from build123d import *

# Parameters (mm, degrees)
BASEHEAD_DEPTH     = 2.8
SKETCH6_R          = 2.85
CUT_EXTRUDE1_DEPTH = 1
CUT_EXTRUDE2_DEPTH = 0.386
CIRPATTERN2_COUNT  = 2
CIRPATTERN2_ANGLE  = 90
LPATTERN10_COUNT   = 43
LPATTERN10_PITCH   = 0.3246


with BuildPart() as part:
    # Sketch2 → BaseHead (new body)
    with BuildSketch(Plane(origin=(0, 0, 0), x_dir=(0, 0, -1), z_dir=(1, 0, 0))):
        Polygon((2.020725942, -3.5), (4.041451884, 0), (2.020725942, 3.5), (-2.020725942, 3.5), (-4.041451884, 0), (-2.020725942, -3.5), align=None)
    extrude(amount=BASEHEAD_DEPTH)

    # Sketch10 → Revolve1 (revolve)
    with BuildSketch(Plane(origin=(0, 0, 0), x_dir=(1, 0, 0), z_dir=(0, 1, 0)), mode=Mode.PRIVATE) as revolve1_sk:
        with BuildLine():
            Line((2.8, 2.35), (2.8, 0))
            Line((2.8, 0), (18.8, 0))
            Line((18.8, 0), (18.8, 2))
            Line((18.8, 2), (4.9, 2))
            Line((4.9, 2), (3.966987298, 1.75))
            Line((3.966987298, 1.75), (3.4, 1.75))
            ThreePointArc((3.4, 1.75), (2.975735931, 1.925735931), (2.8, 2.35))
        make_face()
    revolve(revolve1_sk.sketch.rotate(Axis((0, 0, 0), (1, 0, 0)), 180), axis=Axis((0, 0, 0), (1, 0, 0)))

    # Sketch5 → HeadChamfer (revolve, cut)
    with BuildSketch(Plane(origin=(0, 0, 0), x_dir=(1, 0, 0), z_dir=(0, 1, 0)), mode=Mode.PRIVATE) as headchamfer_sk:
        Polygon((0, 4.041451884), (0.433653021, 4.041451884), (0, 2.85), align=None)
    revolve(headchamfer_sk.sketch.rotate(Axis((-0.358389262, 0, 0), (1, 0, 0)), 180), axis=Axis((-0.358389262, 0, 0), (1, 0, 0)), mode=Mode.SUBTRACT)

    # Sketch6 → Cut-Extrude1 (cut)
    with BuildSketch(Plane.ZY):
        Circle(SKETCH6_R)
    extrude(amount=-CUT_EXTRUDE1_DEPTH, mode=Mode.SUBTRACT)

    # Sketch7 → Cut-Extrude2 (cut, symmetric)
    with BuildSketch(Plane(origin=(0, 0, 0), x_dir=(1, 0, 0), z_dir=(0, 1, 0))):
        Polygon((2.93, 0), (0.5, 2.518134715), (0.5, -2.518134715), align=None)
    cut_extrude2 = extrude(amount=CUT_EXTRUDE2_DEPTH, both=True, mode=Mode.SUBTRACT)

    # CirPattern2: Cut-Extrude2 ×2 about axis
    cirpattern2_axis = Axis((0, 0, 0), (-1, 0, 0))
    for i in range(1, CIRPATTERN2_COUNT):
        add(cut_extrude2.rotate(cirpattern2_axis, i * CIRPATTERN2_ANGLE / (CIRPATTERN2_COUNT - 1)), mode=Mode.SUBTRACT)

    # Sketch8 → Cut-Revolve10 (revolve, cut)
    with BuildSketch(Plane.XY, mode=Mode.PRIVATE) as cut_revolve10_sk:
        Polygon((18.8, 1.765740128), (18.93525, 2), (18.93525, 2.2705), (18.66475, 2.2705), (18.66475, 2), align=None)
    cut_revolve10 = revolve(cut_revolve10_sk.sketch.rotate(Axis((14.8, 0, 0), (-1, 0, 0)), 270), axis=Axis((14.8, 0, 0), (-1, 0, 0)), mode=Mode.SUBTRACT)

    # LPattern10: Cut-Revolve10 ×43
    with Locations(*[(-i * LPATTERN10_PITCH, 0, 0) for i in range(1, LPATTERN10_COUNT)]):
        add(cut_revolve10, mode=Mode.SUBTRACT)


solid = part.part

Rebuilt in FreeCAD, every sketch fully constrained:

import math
import FreeCAD as App
import Part
import Sketcher
Q = App.Units.Quantity

doc = App.newDocument("Part")
params = doc.addObject("Spreadsheet::Sheet", "Params")
for row, (alias, value) in enumerate([
    ("pad1_length", "2.8 mm"),
    ("sketch2_radius", "0.6 mm"),
    ("sketch2_width", "16 mm"),
    ("sketch2_height", "2 mm"),
    ("sketch2_width2", "13.9 mm"),
    ("sketch2_height2", "2.35 mm"),
    ("revolution_angle", "360 deg"),
    ("groove_angle", "360 deg"),
    ("sketch4_diameter", "5.7 mm"),
    ("pocket1_length", "1 mm"),
    ("pocket2_length", "0.772 mm"),
    ("groove2_angle", "360 deg"),
    ("linearpattern_pitch", "0.3246 mm"),
], start=1):
    params.set(f"A{row}", alias)
    params.set(f"B{row}", "=" + value)
    params.setAlias(f"B{row}", alias)

body = doc.addObject("PartDesign::Body", "Body")

# Sketch on YZ plane
sketch1 = body.newObject("Sketcher::SketchObject", "Sketch")
sketch1.AttachmentSupport = (doc.getObject("YZ_Plane"), [""])
sketch1.MapMode = "FlatFace"
sketch1.addGeometry(Part.LineSegment(App.Vector(-3.5, -2, 0), App.Vector(0, -4, 0)), False)
sketch1.addGeometry(Part.LineSegment(App.Vector(0, -4, 0), App.Vector(3.5, -2, 0)), False)
sketch1.addGeometry(Part.LineSegment(App.Vector(3.5, -2, 0), App.Vector(3.5, 2, 0)), False)
sketch1.addGeometry(Part.LineSegment(App.Vector(3.5, 2, 0), App.Vector(0, 4, 0)), False)
sketch1.addGeometry(Part.LineSegment(App.Vector(0, 4, 0), App.Vector(-3.5, 2, 0)), False)
sketch1.addGeometry(Part.LineSegment(App.Vector(-3.5, 2, 0), App.Vector(-3.5, -2, 0)), False)
sketch1.addConstraint(Sketcher.Constraint("Coincident", 0, 2, 1, 1))
sketch1.addConstraint(Sketcher.Constraint("Coincident", 1, 2, 2, 1))
sketch1.addConstraint(Sketcher.Constraint("Coincident", 2, 2, 3, 1))
sketch1.addConstraint(Sketcher.Constraint("Coincident", 3, 2, 4, 1))
sketch1.addConstraint(Sketcher.Constraint("Coincident", 4, 2, 5, 1))
sketch1.addConstraint(Sketcher.Constraint("Coincident", 5, 2, 0, 1))
sketch1.addConstraint(Sketcher.Constraint("Vertical", 2))
sketch1.addConstraint(Sketcher.Constraint("Vertical", 5))
sketch1.addConstraint(Sketcher.Constraint("Symmetric", 0, 2, 3, 2, -1, 1))
sketch1.addConstraint(Sketcher.Constraint("Symmetric", 1, 2, 4, 2, -1, 1))
sketch1.addConstraint(Sketcher.Constraint("PointOnObject", 0, 2, -2))
sketch1.addConstraint(Sketcher.Constraint("Parallel", 0, 3))
sketch1.addConstraint(Sketcher.Constraint("Horizontal", 2, 2, 4, 2))
sketch1.addConstraint(Sketcher.Constraint("Angle", 0, Q("-30 deg")))
sketch1.addConstraint(Sketcher.Constraint("DistanceX", 4, 2, 2, 2, Q("7 mm")))
sketch1.addConstraint(Sketcher.Constraint("DistanceY", 2, 1, 2, 2, Q("4.041452 mm")))
pad1 = body.newObject("PartDesign::Pad", "Pad")
pad1.Profile = sketch1
pad1.setExpression("Length", "Params.pad1_length")

# Sketch on XZ plane
sketch2 = body.newObject("Sketcher::SketchObject", "Sketch001")
sketch2.AttachmentSupport = (doc.getObject("XZ_Plane"), [""])
sketch2.MapMode = "FlatFace"
sketch2.addGeometry(Part.LineSegment(App.Vector(2.8, -2.4, 0), App.Vector(2.8, 0, 0)), False)
sketch2.addGeometry(Part.LineSegment(App.Vector(2.8, 0, 0), App.Vector(18.8, 0, 0)), False)
sketch2.addGeometry(Part.LineSegment(App.Vector(18.8, 0, 0), App.Vector(18.8, -2, 0)), False)
sketch2.addGeometry(Part.LineSegment(App.Vector(18.8, -2, 0), App.Vector(4.9, -2, 0)), False)
sketch2.addGeometry(Part.LineSegment(App.Vector(4.9, -2, 0), App.Vector(4, -1.8, 0)), False)
sketch2.addGeometry(Part.LineSegment(App.Vector(4, -1.8, 0), App.Vector(3.4, -1.8, 0)), False)
sketch2.addGeometry(Part.ArcOfCircle(Part.Circle(App.Vector(3.4, -2.3, 0), App.Vector(0, 0, 1), 0.6), math.radians(90), math.radians(180)), False)
sketch2.addConstraint(Sketcher.Constraint("Coincident", 0, 2, 1, 1))
sketch2.addConstraint(Sketcher.Constraint("Coincident", 1, 2, 2, 1))
sketch2.addConstraint(Sketcher.Constraint("Coincident", 2, 2, 3, 1))
sketch2.addConstraint(Sketcher.Constraint("Coincident", 3, 2, 4, 1))
sketch2.addConstraint(Sketcher.Constraint("Coincident", 4, 2, 5, 1))
sketch2.addConstraint(Sketcher.Constraint("Tangent", 5, 2, 6, 1))
sketch2.addConstraint(Sketcher.Constraint("Tangent", 6, 2, 0, 1))
sketch2.addConstraint(Sketcher.Constraint("Vertical", 0))
sketch2.addConstraint(Sketcher.Constraint("Horizontal", 1))
sketch2.addConstraint(Sketcher.Constraint("Vertical", 2))
sketch2.addConstraint(Sketcher.Constraint("Horizontal", 3))
sketch2.addConstraint(Sketcher.Constraint("Horizontal", 5))
sketch2.addConstraint(Sketcher.Constraint("PointOnObject", 0, 2, -1))
sketch2.addConstraint(Sketcher.Constraint("Radius", 6, Q("0.6 mm")))
sketch2.addConstraint(Sketcher.Constraint("DistanceX", 1, 1, 1, 2, Q("16 mm")))
sketch2.addConstraint(Sketcher.Constraint("DistanceY", 2, 2, 2, 1, Q("2 mm")))
sketch2.addConstraint(Sketcher.Constraint("Angle", 4, Q("165 deg")))
sketch2.addConstraint(Sketcher.Constraint("DistanceX", 3, 2, 3, 1, Q("13.9 mm")))
sketch2.addConstraint(Sketcher.Constraint("DistanceY", 0, 1, 0, 2, Q("2.35 mm")))
sketch2.addConstraint(Sketcher.Constraint("DistanceX", -1, 1, 6, 3, Q("3.4 mm")))
sketch2.setExpression("Constraints[13]", "Params.sketch2_radius")
sketch2.setExpression("Constraints[14]", "Params.sketch2_width")
sketch2.setExpression("Constraints[15]", "Params.sketch2_height")
sketch2.setExpression("Constraints[17]", "Params.sketch2_width2")
sketch2.setExpression("Constraints[18]", "Params.sketch2_height2")
revolution = body.newObject("PartDesign::Revolution", "Revolution")
revolution.Profile = sketch2
revolution.ReferenceAxis = (sketch2, ["H_Axis"])
revolution.setExpression("Angle", "Params.revolution_angle")

# Sketch on XZ plane
sketch3 = body.newObject("Sketcher::SketchObject", "Sketch002")
sketch3.AttachmentSupport = (doc.getObject("XZ_Plane"), [""])
sketch3.MapMode = "FlatFace"
sketch3.addGeometry(Part.LineSegment(App.Vector(0.43, -4.04, 0), App.Vector(0, -4.04, 0)), False)
sketch3.addGeometry(Part.LineSegment(App.Vector(0, -4.04, 0), App.Vector(0, -2.85, 0)), False)
sketch3.addGeometry(Part.LineSegment(App.Vector(0, -2.85, 0), App.Vector(0.43, -4.04, 0)), False)
sketch3.addConstraint(Sketcher.Constraint("Coincident", 0, 2, 1, 1))
sketch3.addConstraint(Sketcher.Constraint("Coincident", 1, 2, 2, 1))
sketch3.addConstraint(Sketcher.Constraint("Coincident", 2, 2, 0, 1))
sketch3.addConstraint(Sketcher.Constraint("Horizontal", 0))
sketch3.addConstraint(Sketcher.Constraint("Vertical", 1))
sketch3.addConstraint(Sketcher.Constraint("PointOnObject", 0, 2, -2))
sketch3.addConstraint(Sketcher.Constraint("Angle", 2, Q("-70 deg")))
sketch3.addConstraint(Sketcher.Constraint("DistanceY", 1, 2, -1, 1, Q("2.85 mm")))
sketch3.addConstraint(Sketcher.Constraint("DistanceY", 1, 1, 1, 2, Q("1.191452 mm")))
groove = body.newObject("PartDesign::Groove", "Groove")
groove.Profile = sketch3
groove.ReferenceAxis = (sketch3, ["H_Axis"])
groove.setExpression("Angle", "Params.groove_angle")

# Sketch on YZ plane
sketch4 = body.newObject("Sketcher::SketchObject", "Sketch003")
sketch4.AttachmentSupport = (doc.getObject("YZ_Plane"), [""])
sketch4.MapMode = "FlatFace"
sketch4.addGeometry(Part.Circle(App.Vector(0, 0, 0), App.Vector(0, 0, 1), 2.9), False)
sketch4.addConstraint(Sketcher.Constraint("Coincident", 0, 3, -1, 1))
sketch4.addConstraint(Sketcher.Constraint("Diameter", 0, Q("5.7 mm")))
sketch4.setExpression("Constraints[1]", "Params.sketch4_diameter")
pocket1 = body.newObject("PartDesign::Pocket", "Pocket")
pocket1.Profile = sketch4
pocket1.setExpression("Length", "Params.pocket1_length")
pocket1.Reversed = True

# Sketch on XZ plane
sketch5 = body.newObject("Sketcher::SketchObject", "Sketch004")
sketch5.AttachmentSupport = (doc.getObject("XZ_Plane"), [""])
sketch5.MapMode = "FlatFace"
sketch5.addGeometry(Part.LineSegment(App.Vector(2.9, 0, 0), App.Vector(0.5, -2.5, 0)), False)
sketch5.addGeometry(Part.LineSegment(App.Vector(0.5, -2.5, 0), App.Vector(0.5, 2.5, 0)), False)
sketch5.addGeometry(Part.LineSegment(App.Vector(0.5, 2.5, 0), App.Vector(2.9, 0, 0)), False)
sketch5.addConstraint(Sketcher.Constraint("Coincident", 0, 2, 1, 1))
sketch5.addConstraint(Sketcher.Constraint("Coincident", 1, 2, 2, 1))
sketch5.addConstraint(Sketcher.Constraint("Coincident", 2, 2, 0, 1))
sketch5.addConstraint(Sketcher.Constraint("Vertical", 1))
sketch5.addConstraint(Sketcher.Constraint("PointOnObject", 2, 2, -1))
sketch5.addConstraint(Sketcher.Constraint("Equal", 0, 2))
sketch5.addConstraint(Sketcher.Constraint("DistanceX", -1, 1, 0, 2, Q("0.5 mm")))
sketch5.addConstraint(Sketcher.Constraint("DistanceX", -1, 1, 2, 2, Q("2.93 mm")))
sketch5.addConstraint(Sketcher.Constraint("DistanceY", 1, 1, 1, 2, Q("5.036269 mm")))
pocket2 = body.newObject("PartDesign::Pocket", "Pocket001")
pocket2.Profile = sketch5
pocket2.setExpression("Length", "Params.pocket2_length")
pocket2.Midplane = True
doc.recompute()

polarpattern = body.newObject("PartDesign::PolarPattern", "PolarPattern")
polarpattern.Originals = [pocket2]
polarpattern.Axis = (doc.getObject("X_Axis"), [""])
polarpattern.Angle = 90
polarpattern.Occurrences = 2
polarpattern.Reversed = True
body.Tip = polarpattern

# Sketch on XY plane
sketch6 = body.newObject("Sketcher::SketchObject", "Sketch005")
sketch6.AttachmentSupport = (doc.getObject("XY_Plane"), [""])
sketch6.MapMode = "FlatFace"
sketch6.addGeometry(Part.LineSegment(App.Vector(18.8, 1.77, 0), App.Vector(18.94, 2, 0)), False)
sketch6.addGeometry(Part.LineSegment(App.Vector(18.94, 2, 0), App.Vector(18.94, 2.27, 0)), False)
sketch6.addGeometry(Part.LineSegment(App.Vector(18.94, 2.27, 0), App.Vector(18.66, 2.27, 0)), False)
sketch6.addGeometry(Part.LineSegment(App.Vector(18.66, 2.27, 0), App.Vector(18.66, 2, 0)), False)
sketch6.addGeometry(Part.LineSegment(App.Vector(18.66, 2, 0), App.Vector(18.8, 1.77, 0)), False)
sketch6.addConstraint(Sketcher.Constraint("Coincident", 0, 2, 1, 1))
sketch6.addConstraint(Sketcher.Constraint("Coincident", 1, 2, 2, 1))
sketch6.addConstraint(Sketcher.Constraint("Coincident", 2, 2, 3, 1))
sketch6.addConstraint(Sketcher.Constraint("Coincident", 3, 2, 4, 1))
sketch6.addConstraint(Sketcher.Constraint("Coincident", 4, 2, 0, 1))
sketch6.addConstraint(Sketcher.Constraint("Vertical", 1))
sketch6.addConstraint(Sketcher.Constraint("Horizontal", 2))
sketch6.addConstraint(Sketcher.Constraint("Vertical", 3))
sketch6.addConstraint(Sketcher.Constraint("Horizontal", 0, 2, 3, 2))
sketch6.addConstraint(Sketcher.Constraint("Equal", 2, 1))
sketch6.addConstraint(Sketcher.Constraint("Equal", 0, 4))
sketch6.addConstraint(Sketcher.Constraint("Angle", 0, Q("60 deg")))
sketch6.addConstraint(Sketcher.Constraint("DistanceY", -1, 1, 0, 2, Q("2 mm")))
sketch6.addConstraint(Sketcher.Constraint("DistanceX", -1, 1, 4, 2, Q("18.8 mm")))
sketch6.addConstraint(Sketcher.Constraint("DistanceX", 2, 2, 2, 1, Q("0.2705 mm")))
groove2 = body.newObject("PartDesign::Groove", "Groove001")
groove2.Profile = sketch6
groove2.ReferenceAxis = (sketch6, ["H_Axis"])
groove2.setExpression("Angle", "Params.groove2_angle")
doc.recompute()

linearpattern = body.newObject("PartDesign::LinearPattern", "LinearPattern")
linearpattern.Originals = [groove2]
linearpattern.Direction = (doc.getObject("X_Axis"), [""])
linearpattern.Mode = "offset"
linearpattern.setExpression("Offset", "Params.linearpattern_pitch")
linearpattern.Occurrences = 43
linearpattern.Reversed = True
body.Tip = linearpattern

doc.recompute()
